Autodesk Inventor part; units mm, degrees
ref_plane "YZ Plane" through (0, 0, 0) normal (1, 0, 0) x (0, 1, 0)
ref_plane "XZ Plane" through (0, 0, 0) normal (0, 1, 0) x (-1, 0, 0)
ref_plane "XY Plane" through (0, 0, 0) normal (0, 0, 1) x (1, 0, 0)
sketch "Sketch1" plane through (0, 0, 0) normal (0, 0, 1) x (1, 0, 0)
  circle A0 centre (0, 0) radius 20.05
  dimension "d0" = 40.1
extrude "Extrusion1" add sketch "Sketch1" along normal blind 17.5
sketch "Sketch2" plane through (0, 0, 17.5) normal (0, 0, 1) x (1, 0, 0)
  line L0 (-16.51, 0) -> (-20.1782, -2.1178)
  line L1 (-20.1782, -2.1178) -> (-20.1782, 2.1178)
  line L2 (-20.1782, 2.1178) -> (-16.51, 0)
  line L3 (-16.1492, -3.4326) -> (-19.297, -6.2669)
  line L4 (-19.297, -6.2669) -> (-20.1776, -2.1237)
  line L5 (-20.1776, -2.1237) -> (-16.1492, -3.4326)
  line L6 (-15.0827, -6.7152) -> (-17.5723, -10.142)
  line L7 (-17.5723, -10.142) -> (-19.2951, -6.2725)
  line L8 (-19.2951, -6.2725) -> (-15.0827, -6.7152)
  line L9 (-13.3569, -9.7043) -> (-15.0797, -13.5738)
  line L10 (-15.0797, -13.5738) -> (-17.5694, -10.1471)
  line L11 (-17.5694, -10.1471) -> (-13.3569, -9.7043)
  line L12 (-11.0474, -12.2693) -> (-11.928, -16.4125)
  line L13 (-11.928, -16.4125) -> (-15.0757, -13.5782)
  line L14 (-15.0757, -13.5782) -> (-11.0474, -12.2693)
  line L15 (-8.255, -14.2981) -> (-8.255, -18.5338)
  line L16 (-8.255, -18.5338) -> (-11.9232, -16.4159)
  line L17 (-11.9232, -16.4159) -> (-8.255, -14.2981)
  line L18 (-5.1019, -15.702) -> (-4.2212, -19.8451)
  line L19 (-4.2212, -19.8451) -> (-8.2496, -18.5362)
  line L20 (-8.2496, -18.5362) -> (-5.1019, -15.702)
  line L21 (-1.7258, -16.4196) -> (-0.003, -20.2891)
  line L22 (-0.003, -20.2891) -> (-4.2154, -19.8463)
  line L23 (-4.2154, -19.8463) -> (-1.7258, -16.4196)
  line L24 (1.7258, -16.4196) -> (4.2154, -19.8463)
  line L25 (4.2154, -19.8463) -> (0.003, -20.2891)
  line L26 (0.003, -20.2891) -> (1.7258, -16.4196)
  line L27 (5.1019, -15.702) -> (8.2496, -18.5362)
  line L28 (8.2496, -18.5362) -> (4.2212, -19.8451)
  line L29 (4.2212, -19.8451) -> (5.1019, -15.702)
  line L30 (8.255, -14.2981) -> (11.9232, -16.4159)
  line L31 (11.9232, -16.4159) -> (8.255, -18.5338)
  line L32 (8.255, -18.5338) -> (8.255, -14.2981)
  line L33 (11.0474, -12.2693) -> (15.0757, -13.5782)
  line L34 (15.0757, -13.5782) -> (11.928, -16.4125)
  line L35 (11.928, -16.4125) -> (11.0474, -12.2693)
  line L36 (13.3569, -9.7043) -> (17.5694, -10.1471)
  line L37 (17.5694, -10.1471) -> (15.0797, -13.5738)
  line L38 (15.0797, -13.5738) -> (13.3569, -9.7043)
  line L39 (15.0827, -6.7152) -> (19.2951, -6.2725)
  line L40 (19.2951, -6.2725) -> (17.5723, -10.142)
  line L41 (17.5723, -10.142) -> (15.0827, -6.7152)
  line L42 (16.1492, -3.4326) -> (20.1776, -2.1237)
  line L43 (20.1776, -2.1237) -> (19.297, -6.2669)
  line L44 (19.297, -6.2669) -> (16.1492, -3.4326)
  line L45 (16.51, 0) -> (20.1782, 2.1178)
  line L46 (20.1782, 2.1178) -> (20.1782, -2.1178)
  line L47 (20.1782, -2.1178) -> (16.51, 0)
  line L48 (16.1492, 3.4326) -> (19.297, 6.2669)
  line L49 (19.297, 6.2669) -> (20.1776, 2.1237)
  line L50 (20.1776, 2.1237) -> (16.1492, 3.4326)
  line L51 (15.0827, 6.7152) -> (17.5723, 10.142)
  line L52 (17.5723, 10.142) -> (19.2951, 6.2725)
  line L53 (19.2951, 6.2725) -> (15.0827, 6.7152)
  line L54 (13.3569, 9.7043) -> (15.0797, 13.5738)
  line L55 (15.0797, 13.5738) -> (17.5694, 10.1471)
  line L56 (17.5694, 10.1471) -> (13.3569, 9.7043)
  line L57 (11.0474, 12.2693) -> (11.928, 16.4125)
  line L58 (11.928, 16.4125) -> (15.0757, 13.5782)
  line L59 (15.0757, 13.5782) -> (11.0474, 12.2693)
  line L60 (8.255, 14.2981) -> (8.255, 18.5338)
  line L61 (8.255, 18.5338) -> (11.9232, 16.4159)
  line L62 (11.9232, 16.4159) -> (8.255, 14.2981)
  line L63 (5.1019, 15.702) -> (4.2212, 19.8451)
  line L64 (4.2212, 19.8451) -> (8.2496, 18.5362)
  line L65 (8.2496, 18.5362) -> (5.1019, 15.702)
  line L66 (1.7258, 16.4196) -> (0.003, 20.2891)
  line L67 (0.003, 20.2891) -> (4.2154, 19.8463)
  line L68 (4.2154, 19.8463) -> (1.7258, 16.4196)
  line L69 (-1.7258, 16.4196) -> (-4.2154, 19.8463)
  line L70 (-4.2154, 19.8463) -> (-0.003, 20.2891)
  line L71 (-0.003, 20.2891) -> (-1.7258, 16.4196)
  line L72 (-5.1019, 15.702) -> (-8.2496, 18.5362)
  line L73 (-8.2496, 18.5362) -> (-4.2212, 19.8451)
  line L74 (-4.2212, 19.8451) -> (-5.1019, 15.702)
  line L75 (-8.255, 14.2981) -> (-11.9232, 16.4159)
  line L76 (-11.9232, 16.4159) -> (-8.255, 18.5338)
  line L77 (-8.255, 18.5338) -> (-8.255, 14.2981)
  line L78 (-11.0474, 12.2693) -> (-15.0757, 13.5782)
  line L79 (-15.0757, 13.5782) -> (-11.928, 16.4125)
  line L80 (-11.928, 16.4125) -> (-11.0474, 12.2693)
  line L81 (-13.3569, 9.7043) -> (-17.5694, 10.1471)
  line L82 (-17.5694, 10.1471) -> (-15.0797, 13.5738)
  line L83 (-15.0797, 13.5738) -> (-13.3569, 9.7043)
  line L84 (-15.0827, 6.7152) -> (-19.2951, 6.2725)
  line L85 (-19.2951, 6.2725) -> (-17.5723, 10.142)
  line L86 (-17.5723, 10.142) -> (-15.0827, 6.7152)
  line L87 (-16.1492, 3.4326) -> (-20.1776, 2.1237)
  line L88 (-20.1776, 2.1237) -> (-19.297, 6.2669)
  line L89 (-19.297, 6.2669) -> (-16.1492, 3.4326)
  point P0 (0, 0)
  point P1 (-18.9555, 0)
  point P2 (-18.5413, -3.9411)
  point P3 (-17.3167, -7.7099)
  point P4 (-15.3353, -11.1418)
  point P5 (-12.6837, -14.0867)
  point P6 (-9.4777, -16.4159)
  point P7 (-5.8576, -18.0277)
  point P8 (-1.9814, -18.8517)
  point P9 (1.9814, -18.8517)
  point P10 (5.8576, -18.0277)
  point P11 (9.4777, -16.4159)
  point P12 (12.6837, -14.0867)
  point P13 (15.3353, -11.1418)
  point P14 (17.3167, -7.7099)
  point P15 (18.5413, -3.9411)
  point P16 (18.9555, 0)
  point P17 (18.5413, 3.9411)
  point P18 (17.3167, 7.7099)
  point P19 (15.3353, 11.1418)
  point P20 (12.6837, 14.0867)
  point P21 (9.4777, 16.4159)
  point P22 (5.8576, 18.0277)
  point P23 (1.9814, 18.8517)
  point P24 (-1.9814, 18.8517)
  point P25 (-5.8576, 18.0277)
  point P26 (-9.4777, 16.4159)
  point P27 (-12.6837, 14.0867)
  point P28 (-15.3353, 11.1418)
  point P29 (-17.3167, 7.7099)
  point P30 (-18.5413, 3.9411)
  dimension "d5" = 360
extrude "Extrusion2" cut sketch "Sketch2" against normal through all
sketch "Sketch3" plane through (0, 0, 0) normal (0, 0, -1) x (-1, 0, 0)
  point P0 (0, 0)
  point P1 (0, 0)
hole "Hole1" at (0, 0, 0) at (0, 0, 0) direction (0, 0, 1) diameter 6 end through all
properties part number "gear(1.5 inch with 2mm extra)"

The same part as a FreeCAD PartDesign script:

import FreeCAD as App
import Part
import Sketcher

V = App.Vector
Q = App.Units.Quantity


def add_polygon(sketch, points):
    """Adds a closed chain of lines whose ends are joined by coincident constraints."""
    first, n = sketch.GeometryCount, len(points)
    for a, b in zip(points, points[1:] + points[:1]):
        sketch.addGeometry(Part.LineSegment(App.Vector(*a, 0), App.Vector(*b, 0)), False)
    for i in range(n):
        sketch.addConstraint(Sketcher.Constraint("Coincident", first + i, 2, first + (i + 1) % n, 1))

doc = App.newDocument("Part")
params = doc.addObject("Spreadsheet::Sheet", "Params")
for row, (alias, value) in enumerate([
    ("sketch1_diameter", "40.1 mm"),
    ("pad1_length", "17.5 mm"),
    ("sketch3_diameter", "6 mm"),
    ("hole_diameter", "6 mm"),
], start=1):
    params.set(f"A{row}", alias)
    params.set(f"B{row}", "=" + value)
    params.setAlias(f"B{row}", alias)

body = doc.addObject("PartDesign::Body", "Body")

# Sketch on XY plane
sketch1 = body.newObject("Sketcher::SketchObject", "Sketch")
sketch1.AttachmentSupport = (doc.getObject("XY_Plane"), [""])
sketch1.MapMode = "FlatFace"
sketch1.addGeometry(Part.Circle(V(0, 0, 0), V(0, 0, 1), 20), False)
sketch1.addConstraint([
    Sketcher.Constraint("Coincident", 0, 3, -1, 1),
    Sketcher.Constraint("Diameter", 0, Q("40.1 mm")),
])
sketch1.setExpression("Constraints[1]", "Params.sketch1_diameter")
pad1 = body.newObject("PartDesign::Pad", "Pad")
pad1.Profile = sketch1
pad1.setExpression("Length", "Params.pad1_length")

# Sketch on XY plane
sketch2 = body.newObject("Sketcher::SketchObject", "Sketch001")
sketch2.AttachmentSupport = (doc.getObject("XY_Plane"), [""])
sketch2.MapMode = "FlatFace"
sketch2.AttachmentOffset = App.Placement(V(0, 0, 17.5), App.Rotation())
add_polygon(sketch2, [(-20.1782, -2.1178), (-16.51, 0), (-20.1782, 2.1178)])  # lines 0-2
add_polygon(sketch2, [(-19.297, -6.2669), (-16.1492, -3.4326), (-20.1776, -2.1237)])  # lines 3-5
add_polygon(sketch2, [(-17.5723, -10.142), (-15.0827, -6.7152), (-19.2951, -6.2725)])  # lines 6-8
add_polygon(sketch2, [(-15.0797, -13.5738), (-13.3569, -9.7043), (-17.5694, -10.1471)])  # lines 9-11
add_polygon(sketch2, [(-11.928, -16.4125), (-11.0474, -12.2693), (-15.0757, -13.5782)])  # lines 12-14
add_polygon(sketch2, [(-8.255, -18.5338), (-8.255, -14.2981), (-11.9232, -16.4159)])  # lines 15-17
add_polygon(sketch2, [(-4.2212, -19.8451), (-5.1019, -15.702), (-8.2496, -18.5362)])  # lines 18-20
add_polygon(sketch2, [(-0.003, -20.2891), (-1.7258, -16.4196), (-4.2154, -19.8463)])  # lines 21-23
add_polygon(sketch2, [(4.2154, -19.8463), (1.7258, -16.4196), (0.003, -20.2891)])  # lines 24-26
add_polygon(sketch2, [(8.2496, -18.5362), (5.1019, -15.702), (4.2212, -19.8451)])  # lines 27-29
add_polygon(sketch2, [(11.9232, -16.4159), (8.255, -14.2981), (8.255, -18.5338)])  # lines 30-32
add_polygon(sketch2, [(15.0757, -13.5782), (11.0474, -12.2693), (11.928, -16.4125)])  # lines 33-35
add_polygon(sketch2, [(17.5694, -10.1471), (13.3569, -9.7043), (15.0797, -13.5738)])  # lines 36-38
add_polygon(sketch2, [(19.2951, -6.2725), (15.0827, -6.7152), (17.5723, -10.142)])  # lines 39-41
add_polygon(sketch2, [(20.1776, -2.1237), (16.1492, -3.4326), (19.297, -6.2669)])  # lines 42-44
add_polygon(sketch2, [(20.1782, 2.1178), (16.51, 0), (20.1782, -2.1178)])  # lines 45-47
add_polygon(sketch2, [(19.297, 6.2669), (16.1492, 3.4326), (20.1776, 2.1237)])  # lines 48-50
add_polygon(sketch2, [(17.5723, 10.142), (15.0827, 6.7152), (19.2951, 6.2725)])  # lines 51-53
add_polygon(sketch2, [(15.0797, 13.5738), (13.3569, 9.7043), (17.5694, 10.1471)])  # lines 54-56
add_polygon(sketch2, [(11.928, 16.4125), (11.0474, 12.2693), (15.0757, 13.5782)])  # lines 57-59
add_polygon(sketch2, [(8.255, 18.5338), (8.255, 14.2981), (11.9232, 16.4159)])  # lines 60-62
add_polygon(sketch2, [(4.2212, 19.8451), (5.1019, 15.702), (8.2496, 18.5362)])  # lines 63-65
add_polygon(sketch2, [(0.003, 20.2891), (1.7258, 16.4196), (4.2154, 19.8463)])  # lines 66-68
add_polygon(sketch2, [(-4.2154, 19.8463), (-1.7258, 16.4196), (-0.003, 20.2891)])  # lines 69-71
add_polygon(sketch2, [(-8.2496, 18.5362), (-5.1019, 15.702), (-4.2212, 19.8451)])  # lines 72-74
add_polygon(sketch2, [(-11.9232, 16.4159), (-8.255, 14.2981), (-8.255, 18.5338)])  # lines 75-77
add_polygon(sketch2, [(-15.0757, 13.5782), (-11.0474, 12.2693), (-11.928, 16.4125)])  # lines 78-80
add_polygon(sketch2, [(-17.5694, 10.1471), (-13.3569, 9.7043), (-15.0797, 13.5738)])  # lines 81-83
add_polygon(sketch2, [(-19.2951, 6.2725), (-15.0827, 6.7152), (-17.5723, 10.142)])  # lines 84-86
add_polygon(sketch2, [(-20.1776, 2.1237), (-16.1492, 3.4326), (-19.297, 6.2669)])  # lines 87-89
sketch2.addConstraint([
    Sketcher.Constraint("Vertical", 2),
    Sketcher.Constraint("Vertical", 15),
    Sketcher.Constraint("Vertical", 31),
    Sketcher.Constraint("Vertical", 47),
    Sketcher.Constraint("Vertical", 60),
    Sketcher.Constraint("Vertical", 76),
    Sketcher.Constraint("Symmetric", 0, 2, 45, 2, -1, 1),
    Sketcher.Constraint("Symmetric", 1, 2, 46, 2, -1, 1),
    Sketcher.Constraint("Symmetric", 3, 2, 48, 2, -1, 1),
    Sketcher.Constraint("Symmetric", 4, 2, 49, 2, -1, 1),
    Sketcher.Constraint("Symmetric", 5, 2, 50, 2, -1, 1),
    Sketcher.Constraint("Symmetric", 6, 2, 51, 2, -1, 1),
    Sketcher.Constraint("Symmetric", 7, 2, 52, 2, -1, 1),
    Sketcher.Constraint("Symmetric", 8, 2, 53, 2, -1, 1),
    Sketcher.Constraint("Symmetric", 9, 2, 54, 2, -1, 1),
    Sketcher.Constraint("Symmetric", 10, 2, 55, 2, -1, 1),
    Sketcher.Constraint("Symmetric", 11, 2, 56, 2, -1, 1),
    Sketcher.Constraint("Symmetric", 12, 2, 57, 2, -1, 1),
    Sketcher.Constraint("Symmetric", 13, 2, 58, 2, -1, 1),
    Sketcher.Constraint("Symmetric", 14, 2, 59, 2, -1, 1),
    Sketcher.Constraint("Symmetric", 15, 2, 60, 2, -1, 1),
    Sketcher.Constraint("Symmetric", 16, 2, 61, 2, -1, 1),
    Sketcher.Constraint("Symmetric", 18, 2, 63, 2, -1, 1),
    Sketcher.Constraint("Symmetric", 19, 2, 64, 2, -1, 1),
    Sketcher.Constraint("Symmetric", 20, 2, 65, 2, -1, 1),
    Sketcher.Constraint("Symmetric", 21, 2, 66, 2, -1, 1),
    Sketcher.Constraint("Symmetric", 22, 2, 67, 2, -1, 1),
    Sketcher.Constraint("Symmetric", 23, 2, 68, 2, -1, 1),
    Sketcher.Constraint("Symmetric", 24, 2, 69, 2, -1, 1),
    Sketcher.Constraint("Symmetric", 25, 2, 70, 2, -1, 1),
    Sketcher.Constraint("Symmetric", 26, 2, 71, 2, -1, 1),
    Sketcher.Constraint("Symmetric", 27, 2, 72, 2, -1, 1),
    Sketcher.Constraint("Symmetric", 28, 2, 73, 2, -1, 1),
    Sketcher.Constraint("Symmetric", 29, 2, 74, 2, -1, 1),
    Sketcher.Constraint("Symmetric", 30, 2, 75, 2, -1, 1),
    Sketcher.Constraint("Symmetric", 32, 2, 77, 2, -1, 1),
    Sketcher.Constraint("Symmetric", 33, 2, 78, 2, -1, 1),
    Sketcher.Constraint("Symmetric", 34, 2, 79, 2, -1, 1),
    Sketcher.Constraint("Symmetric", 35, 2, 80, 2, -1, 1),
    Sketcher.Constraint("Symmetric", 36, 2, 81, 2, -1, 1),
    Sketcher.Constraint("Symmetric", 37, 2, 82, 2, -1, 1),
    Sketcher.Constraint("Symmetric", 38, 2, 83, 2, -1, 1),
    Sketcher.Constraint("Symmetric", 39, 2, 84, 2, -1, 1),
    Sketcher.Constraint("Symmetric", 40, 2, 85, 2, -1, 1),
    Sketcher.Constraint("Symmetric", 41, 2, 86, 2, -1, 1),
    Sketcher.Constraint("Symmetric", 42, 2, 87, 2, -1, 1),
    Sketcher.Constraint("Symmetric", 43, 2, 88, 2, -1, 1),
    Sketcher.Constraint("Symmetric", 44, 2, 89, 2, -1, 1),
    Sketcher.Constraint("Symmetric", 21, 2, 24, 2, -2),
    Sketcher.Constraint("Symmetric", 23, 2, 25, 2, -2),
    Sketcher.Constraint("Symmetric", 22, 2, 26, 2, -2),
    Sketcher.Constraint("Symmetric", 18, 2, 27, 2, -2),
    Sketcher.Constraint("Symmetric", 20, 2, 28, 2, -2),
    Sketcher.Constraint("Symmetric", 19, 2, 29, 2, -2),
    Sketcher.Constraint("Symmetric", 15, 2, 30, 2, -2),
    Sketcher.Constraint("Symmetric", 16, 2, 32, 2, -2),
    Sketcher.Constraint("Symmetric", 12, 2, 33, 2, -2),
    Sketcher.Constraint("Symmetric", 14, 2, 34, 2, -2),
    Sketcher.Constraint("Symmetric", 13, 2, 35, 2, -2),
    Sketcher.Constraint("Symmetric", 9, 2, 36, 2, -2),
    Sketcher.Constraint("Symmetric", 11, 2, 37, 2, -2),
    Sketcher.Constraint("Symmetric", 10, 2, 38, 2, -2),
    Sketcher.Constraint("Symmetric", 6, 2, 39, 2, -2),
    Sketcher.Constraint("Symmetric", 8, 2, 40, 2, -2),
    Sketcher.Constraint("Symmetric", 7, 2, 41, 2, -2),
    Sketcher.Constraint("Symmetric", 3, 2, 42, 2, -2),
    Sketcher.Constraint("Symmetric", 5, 2, 43, 2, -2),
    Sketcher.Constraint("Symmetric", 4, 2, 44, 2, -2),
    Sketcher.Constraint("PointOnObject", 0, 2, -1),
    Sketcher.Constraint("Parallel", 0, 16),
    Sketcher.Constraint("Parallel", 1, 17),
    Sketcher.Constraint("Parallel", 5, 18),
    Sketcher.Constraint("Parallel", 3, 19),
    Sketcher.Constraint("Parallel", 4, 20),
    Sketcher.Constraint("Parallel", 8, 21),
    Sketcher.Constraint("Parallel", 6, 22),
    Sketcher.Constraint("Parallel", 7, 23),
    Sketcher.Constraint("Parallel", 11, 24),
    Sketcher.Constraint("Parallel", 9, 25),
    Sketcher.Constraint("Parallel", 10, 26),
    Sketcher.Constraint("Parallel", 14, 27),
    Sketcher.Constraint("Parallel", 12, 28),
    Sketcher.Constraint("Parallel", 13, 29),
    Sketcher.Constraint("Parallel", 17, 30),
    Sketcher.Constraint("Parallel", 16, 32),
    Sketcher.Constraint("Parallel", 32, 45),
    Sketcher.Constraint("Parallel", 46, 62),
    Sketcher.Constraint("Parallel", 61, 77),
    Sketcher.Constraint("Equal", 2, 15),
    Sketcher.Constraint("Equal", 1, 3),
    Sketcher.Constraint("Equal", 3, 4),
    Sketcher.Constraint("Equal", 4, 5),
    Sketcher.Constraint("Equal", 5, 6),
    Sketcher.Constraint("Equal", 6, 7),
    Sketcher.Constraint("Equal", 7, 8),
    Sketcher.Constraint("Equal", 8, 9),
    Sketcher.Constraint("Equal", 11, 12),
    Sketcher.Constraint("Equal", 17, 18),
    Sketcher.Constraint("Equal", 20, 21),
    Sketcher.Constraint("Angle", 0, Q("29.9996 deg")),
    Sketcher.Constraint("Angle", 3, Q("42 deg")),
    Sketcher.Constraint("Angle", 7, Q("174.0006 deg")),
    Sketcher.Constraint("DistanceX", 0, 2, -1, 1, Q("16.51 mm")),
    Sketcher.Constraint("DistanceY", 2, 2, 2, 1, Q("4.2356 mm")),
    Sketcher.Constraint("DistanceX", 5, 2, -1, 1, Q("19.297 mm")),
    Sketcher.Constraint("DistanceY", 5, 2, -1, 1, Q("6.267 mm")),
    Sketcher.Constraint("DistanceX", 7, 2, -1, 1, Q("19.295 mm")),
    Sketcher.Constraint("DistanceY", 8, 2, -1, 1, Q("10.142 mm")),
    Sketcher.Constraint("DistanceX", 9, 2, -1, 1, Q("13.357 mm")),
    Sketcher.Constraint("DistanceY", 10, 2, -1, 1, Q("10.147 mm")),
    Sketcher.Constraint("DistanceX", 14, 2, -1, 1, Q("11.928 mm")),
    Sketcher.Constraint("DistanceX", 15, 2, -1, 1, Q("8.255 mm")),
    Sketcher.Constraint("DistanceY", 15, 2, -1, 1, Q("14.298 mm")),
    Sketcher.Constraint("DistanceX", 18, 2, -1, 1, Q("5.102 mm")),
    Sketcher.Constraint("DistanceY", 18, 2, -1, 1, Q("15.702 mm")),
    Sketcher.Constraint("DistanceX", 23, 2, -1, 1, Q("0.003 mm")),
    Sketcher.Constraint("DistanceY", 23, 2, -1, 1, Q("20.289 mm")),
    Sketcher.Constraint("DistanceY", 12, 2, -1, 1, Q("12.2693 mm")),
])
pocket1 = body.newObject("PartDesign::Pocket", "Pocket")
pocket1.Profile = sketch2
pocket1.Type = "ThroughAll"

# Sketch on XY plane
sketch3 = body.newObject("Sketcher::SketchObject", "Sketch002")
sketch3.AttachmentSupport = (doc.getObject("XY_Plane"), [""])
sketch3.MapMode = "FlatFace"
sketch3.addGeometry([
    Part.Circle(V(0, 0, 0), V(0, 0, 1), 3),
    Part.Circle(V(0, 0, 0), V(0, 0, 1), 3),
], False)
sketch3.addConstraint([
    Sketcher.Constraint("Coincident", 0, 3, -1, 1),
    Sketcher.Constraint("Coincident", 1, 3, -1, 1),
    Sketcher.Constraint("Equal", 0, 1),
    Sketcher.Constraint("Diameter", 0, Q("6 mm")),
])
sketch3.setExpression("Constraints[3]", "Params.sketch3_diameter")
doc.recompute()
hole = body.newObject("PartDesign::Hole", "Hole")
hole.Profile = sketch3
hole.ThreadType = "None"
hole.setExpression("Diameter", "Params.hole_diameter")
hole.DepthType = "ThroughAll"
hole.Reversed = True

doc.recompute()
